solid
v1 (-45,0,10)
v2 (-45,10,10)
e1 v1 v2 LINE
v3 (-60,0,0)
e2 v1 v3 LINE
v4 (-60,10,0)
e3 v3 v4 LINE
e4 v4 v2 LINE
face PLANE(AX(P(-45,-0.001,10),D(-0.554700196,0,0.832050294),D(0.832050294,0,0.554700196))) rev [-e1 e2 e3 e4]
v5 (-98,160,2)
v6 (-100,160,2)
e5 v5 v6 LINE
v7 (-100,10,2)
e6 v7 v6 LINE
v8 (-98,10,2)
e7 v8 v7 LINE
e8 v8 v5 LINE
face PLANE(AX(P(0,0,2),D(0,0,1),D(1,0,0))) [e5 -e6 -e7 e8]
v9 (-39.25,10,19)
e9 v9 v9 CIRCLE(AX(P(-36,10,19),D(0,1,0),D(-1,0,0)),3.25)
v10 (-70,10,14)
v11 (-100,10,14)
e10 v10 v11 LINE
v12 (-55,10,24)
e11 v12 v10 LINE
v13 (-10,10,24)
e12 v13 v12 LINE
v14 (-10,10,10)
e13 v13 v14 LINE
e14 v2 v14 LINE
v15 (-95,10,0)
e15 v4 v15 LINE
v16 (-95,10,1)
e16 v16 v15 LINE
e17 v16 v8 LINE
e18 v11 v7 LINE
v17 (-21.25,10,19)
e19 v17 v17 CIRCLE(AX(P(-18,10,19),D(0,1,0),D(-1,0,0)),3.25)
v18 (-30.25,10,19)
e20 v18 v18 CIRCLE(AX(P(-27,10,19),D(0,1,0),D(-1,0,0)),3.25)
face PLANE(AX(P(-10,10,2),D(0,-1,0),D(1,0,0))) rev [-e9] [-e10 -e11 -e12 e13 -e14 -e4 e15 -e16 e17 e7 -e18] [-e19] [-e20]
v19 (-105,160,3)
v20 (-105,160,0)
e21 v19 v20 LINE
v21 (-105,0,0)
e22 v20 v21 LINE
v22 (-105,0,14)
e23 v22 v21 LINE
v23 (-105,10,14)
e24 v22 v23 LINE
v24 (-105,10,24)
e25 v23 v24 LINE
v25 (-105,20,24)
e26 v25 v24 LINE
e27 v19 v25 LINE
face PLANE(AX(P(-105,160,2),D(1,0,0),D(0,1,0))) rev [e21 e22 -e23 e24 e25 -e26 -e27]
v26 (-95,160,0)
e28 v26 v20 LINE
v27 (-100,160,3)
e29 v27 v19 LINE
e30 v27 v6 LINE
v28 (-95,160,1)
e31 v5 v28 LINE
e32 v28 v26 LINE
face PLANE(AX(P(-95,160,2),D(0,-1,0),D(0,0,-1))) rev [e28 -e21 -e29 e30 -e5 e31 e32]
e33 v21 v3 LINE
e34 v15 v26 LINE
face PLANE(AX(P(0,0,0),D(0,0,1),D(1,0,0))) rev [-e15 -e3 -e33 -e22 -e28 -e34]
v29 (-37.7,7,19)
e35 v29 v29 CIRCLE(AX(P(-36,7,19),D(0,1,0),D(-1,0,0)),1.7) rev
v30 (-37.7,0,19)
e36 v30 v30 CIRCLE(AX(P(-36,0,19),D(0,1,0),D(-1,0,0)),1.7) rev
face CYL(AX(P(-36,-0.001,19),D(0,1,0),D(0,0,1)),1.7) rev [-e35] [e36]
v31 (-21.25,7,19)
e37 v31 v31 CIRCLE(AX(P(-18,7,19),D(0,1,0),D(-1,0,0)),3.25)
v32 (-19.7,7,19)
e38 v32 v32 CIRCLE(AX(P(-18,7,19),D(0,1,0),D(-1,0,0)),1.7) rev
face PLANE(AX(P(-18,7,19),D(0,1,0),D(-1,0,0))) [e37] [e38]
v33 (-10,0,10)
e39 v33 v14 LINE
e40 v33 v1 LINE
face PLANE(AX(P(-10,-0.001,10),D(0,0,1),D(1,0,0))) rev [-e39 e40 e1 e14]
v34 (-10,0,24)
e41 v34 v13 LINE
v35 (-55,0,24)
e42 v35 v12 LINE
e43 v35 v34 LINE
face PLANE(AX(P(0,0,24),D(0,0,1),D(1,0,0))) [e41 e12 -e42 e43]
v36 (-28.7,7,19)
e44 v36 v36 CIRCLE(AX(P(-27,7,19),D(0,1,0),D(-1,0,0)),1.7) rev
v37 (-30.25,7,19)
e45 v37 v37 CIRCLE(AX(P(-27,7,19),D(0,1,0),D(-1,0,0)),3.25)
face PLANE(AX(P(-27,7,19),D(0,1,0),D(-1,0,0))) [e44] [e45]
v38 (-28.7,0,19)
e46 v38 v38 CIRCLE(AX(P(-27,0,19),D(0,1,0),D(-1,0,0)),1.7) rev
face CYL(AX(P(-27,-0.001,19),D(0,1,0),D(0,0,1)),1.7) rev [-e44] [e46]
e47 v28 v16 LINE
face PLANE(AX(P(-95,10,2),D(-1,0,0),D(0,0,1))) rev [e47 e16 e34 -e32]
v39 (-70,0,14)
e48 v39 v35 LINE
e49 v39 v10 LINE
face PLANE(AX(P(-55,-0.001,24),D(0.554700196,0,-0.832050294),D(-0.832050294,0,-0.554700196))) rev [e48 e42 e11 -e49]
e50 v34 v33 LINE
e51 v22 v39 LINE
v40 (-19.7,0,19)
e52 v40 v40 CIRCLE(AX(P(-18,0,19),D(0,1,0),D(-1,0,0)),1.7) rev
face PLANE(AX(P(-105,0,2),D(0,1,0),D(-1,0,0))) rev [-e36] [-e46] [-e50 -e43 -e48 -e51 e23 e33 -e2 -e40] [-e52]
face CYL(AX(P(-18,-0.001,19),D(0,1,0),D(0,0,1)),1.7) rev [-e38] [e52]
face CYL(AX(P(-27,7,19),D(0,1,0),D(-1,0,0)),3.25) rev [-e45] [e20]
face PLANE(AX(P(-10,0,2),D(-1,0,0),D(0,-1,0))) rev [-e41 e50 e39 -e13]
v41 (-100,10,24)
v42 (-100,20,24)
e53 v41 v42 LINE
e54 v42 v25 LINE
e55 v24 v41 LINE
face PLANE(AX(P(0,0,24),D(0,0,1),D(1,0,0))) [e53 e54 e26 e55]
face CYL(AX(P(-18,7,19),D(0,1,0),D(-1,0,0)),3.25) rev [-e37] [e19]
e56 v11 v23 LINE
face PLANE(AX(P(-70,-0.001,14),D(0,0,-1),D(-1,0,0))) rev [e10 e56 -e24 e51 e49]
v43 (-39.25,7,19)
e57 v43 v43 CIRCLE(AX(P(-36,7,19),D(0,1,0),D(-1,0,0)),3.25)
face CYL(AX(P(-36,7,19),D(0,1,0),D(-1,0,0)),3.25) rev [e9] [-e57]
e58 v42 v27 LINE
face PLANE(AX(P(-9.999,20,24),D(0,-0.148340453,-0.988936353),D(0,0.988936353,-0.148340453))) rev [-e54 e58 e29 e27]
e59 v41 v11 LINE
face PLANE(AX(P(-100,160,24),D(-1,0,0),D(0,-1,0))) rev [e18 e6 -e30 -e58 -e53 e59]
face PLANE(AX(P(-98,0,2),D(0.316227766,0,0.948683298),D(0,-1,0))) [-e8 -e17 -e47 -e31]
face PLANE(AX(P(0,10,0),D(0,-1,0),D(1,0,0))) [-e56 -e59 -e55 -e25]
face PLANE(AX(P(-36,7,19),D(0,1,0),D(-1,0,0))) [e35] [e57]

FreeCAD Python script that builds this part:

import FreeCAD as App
import Part
import Sketcher


def edges_at(feature, points):
    """Names of the edges that pass closest to the given points."""
    edges = feature.Shape.Edges
    near = lambda p: min(range(len(edges)), key=lambda i: edges[i].distToShape(Part.Vertex(*p))[0])
    return sorted({f"Edge{near(p) + 1}" for p in points})

doc = App.newDocument("Part")
body = doc.addObject("PartDesign::Body", "Body")

# Sketch on XY plane
sketch1 = body.newObject("Sketcher::SketchObject", "Sketch")
sketch1.AttachmentSupport = (doc.getObject("XY_Plane"), [""])
sketch1.MapMode = "FlatFace"
sketch1.addGeometry(Part.LineSegment(App.Vector(-10, 10, 0), App.Vector(-95, 10, 0)), False)
sketch1.addGeometry(Part.LineSegment(App.Vector(-95, 10, 0), App.Vector(-95, 160, 0)), False)
sketch1.addGeometry(Part.LineSegment(App.Vector(-95, 160, 0), App.Vector(-105, 160, 0)), False)
sketch1.addGeometry(Part.LineSegment(App.Vector(-105, 160, 0), App.Vector(-105, 0, 0)), False)
sketch1.addGeometry(Part.LineSegment(App.Vector(-105, 0, 0), App.Vector(-10, 0, 0)), False)
sketch1.addGeometry(Part.LineSegment(App.Vector(-10, 0, 0), App.Vector(-10, 10, 0)), False)
sketch1.addConstraint(Sketcher.Constraint("Coincident", 0, 2, 1, 1))
sketch1.addConstraint(Sketcher.Constraint("Coincident", 1, 2, 2, 1))
sketch1.addConstraint(Sketcher.Constraint("Coincident", 2, 2, 3, 1))
sketch1.addConstraint(Sketcher.Constraint("Coincident", 3, 2, 4, 1))
sketch1.addConstraint(Sketcher.Constraint("Coincident", 4, 2, 5, 1))
sketch1.addConstraint(Sketcher.Constraint("Coincident", 5, 2, 0, 1))
sketch1.addConstraint(Sketcher.Constraint("Horizontal", 0))
sketch1.addConstraint(Sketcher.Constraint("Vertical", 1))
sketch1.addConstraint(Sketcher.Constraint("Horizontal", 2))
sketch1.addConstraint(Sketcher.Constraint("Vertical", 3))
sketch1.addConstraint(Sketcher.Constraint("Horizontal", 4))
sketch1.addConstraint(Sketcher.Constraint("Vertical", 5))
sketch1.addConstraint(Sketcher.Constraint("PointOnObject", 3, 2, -1))
sketch1.addConstraint(Sketcher.Constraint("Equal", 2, 5))
sketch1.addConstraint(Sketcher.Constraint("DistanceX", 0, 2, 0, 1, 85.0))
sketch1.addConstraint(Sketcher.Constraint("DistanceX", 2, 2, 2, 1, 10.0))
sketch1.addConstraint(Sketcher.Constraint("DistanceY", 1, 1, 1, 2, 150.0))
sketch1.addConstraint(Sketcher.Constraint("DistanceX", 0, 2, -1, 1, 95.0))
pad1 = body.newObject("PartDesign::Pad", "Pad")
pad1.Profile = sketch1
pad1.Length = 2

# Sketch on XY plane
sketch2 = body.newObject("Sketcher::SketchObject", "Sketch001")
sketch2.AttachmentSupport = (doc.getObject("XY_Plane"), [""])
sketch2.MapMode = "FlatFace"
sketch2.AttachmentOffset = App.Placement(App.Vector(0, 0, 2), App.Rotation())
sketch2.addGeometry(Part.LineSegment(App.Vector(-105, 0, 0), App.Vector(-10, 0, 0)), False)
sketch2.addGeometry(Part.LineSegment(App.Vector(-10, 0, 0), App.Vector(-10, 10, 0)), False)
sketch2.addGeometry(Part.LineSegment(App.Vector(-10, 10, 0), App.Vector(-100, 10, 0)), False)
sketch2.addGeometry(Part.LineSegment(App.Vector(-100, 10, 0), App.Vector(-100, 160, 0)), False)
sketch2.addGeometry(Part.LineSegment(App.Vector(-100, 160, 0), App.Vector(-105, 160, 0)), False)
sketch2.addGeometry(Part.LineSegment(App.Vector(-105, 160, 0), App.Vector(-105, 0, 0)), False)
sketch2.addConstraint(Sketcher.Constraint("Coincident", 0, 2, 1, 1))
sketch2.addConstraint(Sketcher.Constraint("Coincident", 1, 2, 2, 1))
sketch2.addConstraint(Sketcher.Constraint("Coincident", 2, 2, 3, 1))
sketch2.addConstraint(Sketcher.Constraint("Coincident", 3, 2, 4, 1))
sketch2.addConstraint(Sketcher.Constraint("Coincident", 4, 2, 5, 1))
sketch2.addConstraint(Sketcher.Constraint("Coincident", 5, 2, 0, 1))
sketch2.addConstraint(Sketcher.Constraint("Horizontal", 0))
sketch2.addConstraint(Sketcher.Constraint("Vertical", 1))
sketch2.addConstraint(Sketcher.Constraint("Horizontal", 2))
sketch2.addConstraint(Sketcher.Constraint("Vertical", 3))
sketch2.addConstraint(Sketcher.Constraint("Horizontal", 4))
sketch2.addConstraint(Sketcher.Constraint("Vertical", 5))
sketch2.addConstraint(Sketcher.Constraint("PointOnObject", 0, 2, -1))
sketch2.addConstraint(Sketcher.Constraint("DistanceX", 0, 1, 0, 2, 95.0))
sketch2.addConstraint(Sketcher.Constraint("DistanceX", 2, 2, 2, 1, 90.0))
sketch2.addConstraint(Sketcher.Constraint("DistanceY", 1, 1, 1, 2, 10.0))
sketch2.addConstraint(Sketcher.Constraint("DistanceY", 3, 1, 3, 2, 150.0))
sketch2.addConstraint(Sketcher.Constraint("DistanceX", 0, 2, -1, 1, 10.0))
pad2 = body.newObject("PartDesign::Pad", "Pad001")
pad2.Profile = sketch2
pad2.Length = 22

# Sketch on YZ plane
sketch3 = body.newObject("Sketcher::SketchObject", "Sketch002")
sketch3.AttachmentSupport = (doc.getObject("YZ_Plane"), [""])
sketch3.MapMode = "FlatFace"
sketch3.AttachmentOffset = App.Placement(App.Vector(0, 0, -105), App.Rotation())
sketch3.addGeometry(Part.LineSegment(App.Vector(160, 24, 0), App.Vector(160, 3, 0)), False)
sketch3.addGeometry(Part.LineSegment(App.Vector(160, 3, 0), App.Vector(20, 24, 0)), False)
sketch3.addGeometry(Part.LineSegment(App.Vector(20, 24, 0), App.Vector(160, 24, 0)), False)
sketch3.addConstraint(Sketcher.Constraint("Coincident", 0, 2, 1, 1))
sketch3.addConstraint(Sketcher.Constraint("Coincident", 1, 2, 2, 1))
sketch3.addConstraint(Sketcher.Constraint("Coincident", 2, 2, 0, 1))
sketch3.addConstraint(Sketcher.Constraint("Vertical", 0))
sketch3.addConstraint(Sketcher.Constraint("Horizontal", 2))
sketch3.addConstraint(Sketcher.Constraint("DistanceX", 2, 1, 2, 2, 140.0))
sketch3.addConstraint(Sketcher.Constraint("DistanceY", 0, 2, 0, 1, 21.0))
sketch3.addConstraint(Sketcher.Constraint("DistanceX", -1, 1, 0, 2, 160.0))
sketch3.addConstraint(Sketcher.Constraint("DistanceY", -1, 1, 0, 2, 3.0))
pocket1 = body.newObject("PartDesign::Pocket", "Pocket")
pocket1.Profile = sketch3
pocket1.Type = "UpToFirst"
pocket1.Reversed = True
doc.recompute()

chamfer = body.newObject("PartDesign::Chamfer", "Chamfer")
chamfer.Base = (pocket1, edges_at(pocket1, [(-95, 85, 2)]))
chamfer.ChamferType = "Two distances"
chamfer.Size = 1
chamfer.Size2 = 3

# Sketch on XZ plane
sketch4 = body.newObject("Sketcher::SketchObject", "Sketch003")
sketch4.AttachmentSupport = (doc.getObject("XZ_Plane"), [""])
sketch4.MapMode = "FlatFace"
sketch4.AttachmentOffset = App.Placement(App.Vector(0, 0, -10), App.Rotation())
sketch4.addGeometry(Part.Circle(App.Vector(-18, 19, 0), App.Vector(0, 0, 1), 1.7), False)
sketch4.addConstraint(Sketcher.Constraint("Diameter", 0, 3.4))
sketch4.addConstraint(Sketcher.Constraint("DistanceX", 0, 3, -1, 1, 18.0))
sketch4.addConstraint(Sketcher.Constraint("DistanceY", -1, 1, 0, 3, 19.0))
pocket2 = body.newObject("PartDesign::Pocket", "Pocket001")
pocket2.Profile = sketch4
pocket2.Type = "UpToFirst"
pocket2.Reversed = True

# Sketch on XZ plane
sketch5 = body.newObject("Sketcher::SketchObject", "Sketch004")
sketch5.AttachmentSupport = (doc.getObject("XZ_Plane"), [""])
sketch5.MapMode = "FlatFace"
sketch5.AttachmentOffset = App.Placement(App.Vector(0, 0, -10), App.Rotation())
sketch5.addGeometry(Part.Circle(App.Vector(-27, 19, 0), App.Vector(0, 0, 1), 1.7), False)
sketch5.addConstraint(Sketcher.Constraint("Diameter", 0, 3.4))
sketch5.addConstraint(Sketcher.Constraint("DistanceX", 0, 3, -1, 1, 27.0))
sketch5.addConstraint(Sketcher.Constraint("DistanceY", -1, 1, 0, 3, 19.0))
pocket3 = body.newObject("PartDesign::Pocket", "Pocket002")
pocket3.Profile = sketch5
pocket3.Type = "UpToFirst"
pocket3.Reversed = True

# Sketch on XZ plane
sketch6 = body.newObject("Sketcher::SketchObject", "Sketch005")
sketch6.AttachmentSupport = (doc.getObject("XZ_Plane"), [""])
sketch6.MapMode = "FlatFace"
sketch6.AttachmentOffset = App.Placement(App.Vector(0, 0, -10), App.Rotation())
sketch6.addGeometry(Part.Circle(App.Vector(-36, 19, 0), App.Vector(0, 0, 1), 1.7), False)
sketch6.addConstraint(Sketcher.Constraint("Diameter", 0, 3.4))
sketch6.addConstraint(Sketcher.Constraint("DistanceX", 0, 3, -1, 1, 36.0))
sketch6.addConstraint(Sketcher.Constraint("DistanceY", -1, 1, 0, 3, 19.0))
pocket4 = body.newObject("PartDesign::Pocket", "Pocket003")
pocket4.Profile = sketch6
pocket4.Type = "UpToFirst"
pocket4.Reversed = True

# Sketch on XZ plane
sketch7 = body.newObject("Sketcher::SketchObject", "Sketch006")
sketch7.AttachmentSupport = (doc.getObject("XZ_Plane"), [""])
sketch7.MapMode = "FlatFace"
sketch7.AttachmentOffset = App.Placement(App.Vector(0, 0, -10), App.Rotation())
sketch7.addGeometry(Part.Circle(App.Vector(-18, 19, 0), App.Vector(0, 0, 1), 3.2), False)
sketch7.addGeometry(Part.Circle(App.Vector(-27, 19, 0), App.Vector(0, 0, 1), 3.2), False)
sketch7.addGeometry(Part.Circle(App.Vector(-36, 19, 0), App.Vector(0, 0, 1), 3.2), False)
sketch7.addConstraint(Sketcher.Constraint("Equal", 0, 1))
sketch7.addConstraint(Sketcher.Constraint("Equal", 1, 2))
sketch7.addConstraint(Sketcher.Constraint("Horizontal", 0, 3, 1, 3))
sketch7.addConstraint(Sketcher.Constraint("Horizontal", 1, 3, 2, 3))
sketch7.addConstraint(Sketcher.Constraint("Diameter", 0, 6.5))
sketch7.addConstraint(Sketcher.Constraint("DistanceX", 0, 3, -1, 1, 18.0))
sketch7.addConstraint(Sketcher.Constraint("DistanceY", -1, 1, 0, 3, 19.0))
sketch7.addConstraint(Sketcher.Constraint("DistanceX", 1, 3, -1, 1, 27.0))
sketch7.addConstraint(Sketcher.Constraint("DistanceX", 2, 3, -1, 1, 36.0))
pocket5 = body.newObject("PartDesign::Pocket", "Pocket004")
pocket5.Profile = sketch7
pocket5.Length = 3
pocket5.Reversed = True

# Sketch on XZ plane
sketch8 = body.newObject("Sketcher::SketchObject", "Sketch007")
sketch8.AttachmentSupport = (doc.getObject("XZ_Plane"), [""])
sketch8.MapMode = "FlatFace"
sketch8.AttachmentOffset = App.Placement(App.Vector(0, 0, -10), App.Rotation())
sketch8.addGeometry(Part.LineSegment(App.Vector(-10, 10, 0), App.Vector(-10, 0, 0)), False)
sketch8.addGeometry(Part.LineSegment(App.Vector(-10, 0, 0), App.Vector(-60, 0, 0)), False)
sketch8.addGeometry(Part.LineSegment(App.Vector(-60, 0, 0), App.Vector(-45, 10, 0)), False)
sketch8.addGeometry(Part.LineSegment(App.Vector(-45, 10, 0), App.Vector(-10, 10, 0)), False)
sketch8.addConstraint(Sketcher.Constraint("Coincident", 0, 2, 1, 1))
sketch8.addConstraint(Sketcher.Constraint("Coincident", 1, 2, 2, 1))
sketch8.addConstraint(Sketcher.Constraint("Coincident", 2, 2, 3, 1))
sketch8.addConstraint(Sketcher.Constraint("Coincident", 3, 2, 0, 1))
sketch8.addConstraint(Sketcher.Constraint("Vertical", 0))
sketch8.addConstraint(Sketcher.Constraint("Horizontal", 1))
sketch8.addConstraint(Sketcher.Constraint("Horizontal", 3))
sketch8.addConstraint(Sketcher.Constraint("PointOnObject", 0, 2, -1))
sketch8.addConstraint(Sketcher.Constraint("DistanceX", 1, 2, 1, 1, 50.0))
sketch8.addConstraint(Sketcher.Constraint("DistanceX", 3, 1, 3, 2, 35.0))
sketch8.addConstraint(Sketcher.Constraint("DistanceY", 0, 2, 0, 1, 10.0))
sketch8.addConstraint(Sketcher.Constraint("DistanceX", 0, 2, -1, 1, 10.0))
pocket6 = body.newObject("PartDesign::Pocket", "Pocket005")
pocket6.Profile = sketch8
pocket6.Type = "UpToFirst"
pocket6.Reversed = True

# Sketch on XZ plane
sketch9 = body.newObject("Sketcher::SketchObject", "Sketch008")
sketch9.AttachmentSupport = (doc.getObject("XZ_Plane"), [""])
sketch9.MapMode = "FlatFace"
sketch9.AttachmentOffset = App.Placement(App.Vector(0, 0, -10), App.Rotation())
sketch9.addGeometry(Part.LineSegment(App.Vector(-55, 24, 0), App.Vector(-70, 14, 0)), False)
sketch9.addGeometry(Part.LineSegment(App.Vector(-70, 14, 0), App.Vector(-105, 14, 0)), False)
sketch9.addGeometry(Part.LineSegment(App.Vector(-105, 14, 0), App.Vector(-105, 24, 0)), False)
sketch9.addGeometry(Part.LineSegment(App.Vector(-105, 24, 0), App.Vector(-55, 24, 0)), False)
sketch9.addConstraint(Sketcher.Constraint("Coincident", 0, 2, 1, 1))
sketch9.addConstraint(Sketcher.Constraint("Coincident", 1, 2, 2, 1))
sketch9.addConstraint(Sketcher.Constraint("Coincident", 2, 2, 3, 1))
sketch9.addConstraint(Sketcher.Constraint("Coincident", 3, 2, 0, 1))
sketch9.addConstraint(Sketcher.Constraint("Horizontal", 1))
sketch9.addConstraint(Sketcher.Constraint("Vertical", 2))
sketch9.addConstraint(Sketcher.Constraint("Horizontal", 3))
sketch9.addConstraint(Sketcher.Constraint("DistanceX", 1, 2, 1, 1, 35.0))
sketch9.addConstraint(Sketcher.Constraint("DistanceX", 3, 1, 3, 2, 50.0))
sketch9.addConstraint(Sketcher.Constraint("DistanceY", 2, 1, 2, 2, 10.0))
sketch9.addConstraint(Sketcher.Constraint("DistanceX", 0, 2, -1, 1, 70.0))
sketch9.addConstraint(Sketcher.Constraint("DistanceY", -1, 1, 0, 2, 14.0))
pocket7 = body.newObject("PartDesign::Pocket", "Pocket006")
pocket7.Profile = sketch9
pocket7.Type = "UpToFirst"
pocket7.Reversed = True

doc.recompute()
